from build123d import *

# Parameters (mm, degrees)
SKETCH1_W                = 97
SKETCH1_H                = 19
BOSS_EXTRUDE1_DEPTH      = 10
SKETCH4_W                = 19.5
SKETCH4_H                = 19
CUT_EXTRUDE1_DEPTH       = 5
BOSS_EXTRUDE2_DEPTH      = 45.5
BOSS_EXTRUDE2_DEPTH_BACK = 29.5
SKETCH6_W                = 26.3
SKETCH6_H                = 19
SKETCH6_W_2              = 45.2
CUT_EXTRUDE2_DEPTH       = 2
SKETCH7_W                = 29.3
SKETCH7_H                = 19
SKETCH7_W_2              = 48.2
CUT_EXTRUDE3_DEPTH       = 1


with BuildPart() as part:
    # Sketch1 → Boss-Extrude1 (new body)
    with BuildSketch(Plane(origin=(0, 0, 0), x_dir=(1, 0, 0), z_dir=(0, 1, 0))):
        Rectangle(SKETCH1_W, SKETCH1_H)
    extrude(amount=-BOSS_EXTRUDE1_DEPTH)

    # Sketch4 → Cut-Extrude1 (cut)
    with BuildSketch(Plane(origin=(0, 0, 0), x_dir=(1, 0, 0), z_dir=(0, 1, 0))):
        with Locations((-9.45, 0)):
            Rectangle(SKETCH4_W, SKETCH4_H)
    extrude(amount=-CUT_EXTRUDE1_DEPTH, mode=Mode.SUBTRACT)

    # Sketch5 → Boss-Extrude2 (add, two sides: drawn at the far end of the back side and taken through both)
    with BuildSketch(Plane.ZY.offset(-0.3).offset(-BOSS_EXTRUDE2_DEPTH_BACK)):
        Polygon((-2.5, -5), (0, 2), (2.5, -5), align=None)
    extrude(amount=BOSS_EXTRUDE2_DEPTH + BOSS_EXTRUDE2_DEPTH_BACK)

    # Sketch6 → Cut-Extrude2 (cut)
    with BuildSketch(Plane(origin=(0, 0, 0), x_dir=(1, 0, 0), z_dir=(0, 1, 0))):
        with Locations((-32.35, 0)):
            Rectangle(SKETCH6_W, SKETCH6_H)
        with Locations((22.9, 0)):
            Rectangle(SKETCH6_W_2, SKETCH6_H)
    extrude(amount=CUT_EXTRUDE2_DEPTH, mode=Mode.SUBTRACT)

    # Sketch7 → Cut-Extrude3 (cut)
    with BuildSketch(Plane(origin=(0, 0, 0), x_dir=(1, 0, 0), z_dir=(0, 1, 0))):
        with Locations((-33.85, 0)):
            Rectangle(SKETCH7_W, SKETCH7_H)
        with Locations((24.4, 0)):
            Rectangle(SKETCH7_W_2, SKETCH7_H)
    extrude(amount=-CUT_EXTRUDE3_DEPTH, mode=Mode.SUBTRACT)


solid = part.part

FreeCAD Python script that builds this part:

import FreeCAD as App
import Part
import Sketcher

V = App.Vector
Q = App.Units.Quantity


def add_polygon(sketch, points):
    """Adds a closed chain of lines whose ends are joined by coincident constraints."""
    first, n = sketch.GeometryCount, len(points)
    for a, b in zip(points, points[1:] + points[:1]):
        sketch.addGeometry(Part.LineSegment(App.Vector(*a, 0), App.Vector(*b, 0)), False)
    for i in range(n):
        sketch.addConstraint(Sketcher.Constraint("Coincident", first + i, 2, first + (i + 1) % n, 1))

doc = App.newDocument("Part")
body = doc.addObject("PartDesign::Body", "Body")

# Sketch on XZ plane
sketch1 = body.newObject("Sketcher::SketchObject", "Sketch")
sketch1.AttachmentSupport = (doc.getObject("XZ_Plane"), [""])
sketch1.MapMode = "FlatFace"
add_polygon(sketch1, [(-48.5, -9.5), (-48.5, 9.5), (48.5, 9.5), (48.5, -9.5)])  # lines 0-3
sketch1.addConstraint(Sketcher.Constraint("Vertical", 0))
sketch1.addConstraint(Sketcher.Constraint("Horizontal", 1))
sketch1.addConstraint(Sketcher.Constraint("Vertical", 2))
sketch1.addConstraint(Sketcher.Constraint("Horizontal", 3))
sketch1.addConstraint(Sketcher.Constraint("Symmetric", 0, 2, 2, 2, -1, 1))
sketch1.addConstraint(Sketcher.Constraint("DistanceX", 1, 1, 1, 2, Q("97 mm")))
sketch1.addConstraint(Sketcher.Constraint("DistanceY", 0, 1, 0, 2, Q("19 mm")))
pad1 = body.newObject("PartDesign::Pad", "Pad")
pad1.Profile = sketch1
pad1.Length = 10

# Sketch on XZ plane
sketch2 = body.newObject("Sketcher::SketchObject", "Sketch001")
sketch2.AttachmentSupport = (doc.getObject("XZ_Plane"), [""])
sketch2.MapMode = "FlatFace"
add_polygon(sketch2, [(-19.2, -9.5), (-19.2, 9.5), (0.3, 9.5), (0.3, -9.5)])  # lines 0-3
sketch2.addConstraint(Sketcher.Constraint("Vertical", 0))
sketch2.addConstraint(Sketcher.Constraint("Horizontal", 1))
sketch2.addConstraint(Sketcher.Constraint("Vertical", 2))
sketch2.addConstraint(Sketcher.Constraint("Horizontal", 3))
sketch2.addConstraint(Sketcher.Constraint("DistanceY", 0, 1, 0, 2, Q("19 mm")))
sketch2.addConstraint(Sketcher.Constraint("DistanceX", 1, 1, 1, 2, Q("19.5 mm")))
sketch2.addConstraint(Sketcher.Constraint("DistanceX", 0, 2, -1, 1, Q("19.2 mm")))
sketch2.addConstraint(Sketcher.Constraint("DistanceY", -1, 1, 0, 2, Q("9.5 mm")))
pocket1 = body.newObject("PartDesign::Pocket", "Pocket")
pocket1.Profile = sketch2
pocket1.Length = 5
pocket1.Reversed = True

# Sketch on YZ plane
sketch3 = body.newObject("Sketcher::SketchObject", "Sketch002")
sketch3.AttachmentSupport = (doc.getObject("YZ_Plane"), [""])
sketch3.MapMode = "FlatFace"
sketch3.AttachmentOffset = App.Placement(V(0, 0, 0.3), App.Rotation())
add_polygon(sketch3, [(2, 0), (-5, -2.5), (-5, 2.5)])  # lines 0-2
sketch3.addConstraint(Sketcher.Constraint("Vertical", 1))
sketch3.addConstraint(Sketcher.Constraint("PointOnObject", 2, 2, -1))
sketch3.addConstraint(Sketcher.Constraint("Equal", 0, 2))
sketch3.addConstraint(Sketcher.Constraint("DistanceY", 1, 1, 1, 2, Q("5 mm")))
sketch3.addConstraint(Sketcher.Constraint("DistanceX", 0, 2, -1, 1, Q("5 mm")))
sketch3.addConstraint(Sketcher.Constraint("DistanceX", -1, 1, 2, 2, Q("2 mm")))
pad2 = body.newObject("PartDesign::Pad", "Pad001")
pad2.Profile = sketch3
pad2.Type = "TwoLengths"
pad2.Length = 45.5
pad2.Length2 = 29.5
pad2.Reversed = True

# Sketch on XZ plane
sketch4 = body.newObject("Sketcher::SketchObject", "Sketch003")
sketch4.AttachmentSupport = (doc.getObject("XZ_Plane"), [""])
sketch4.MapMode = "FlatFace"
add_polygon(sketch4, [(-45.5, -9.5), (-45.5, 9.5), (-19.2, 9.5), (-19.2, -9.5)])  # lines 0-3
add_polygon(sketch4, [(0.3, -9.5), (0.3, 9.5), (45.5, 9.5), (45.5, -9.5)])  # lines 4-7
sketch4.addConstraint(Sketcher.Constraint("Vertical", 0))
sketch4.addConstraint(Sketcher.Constraint("Horizontal", 1))
sketch4.addConstraint(Sketcher.Constraint("Vertical", 2))
sketch4.addConstraint(Sketcher.Constraint("Horizontal", 3))
sketch4.addConstraint(Sketcher.Constraint("Vertical", 4))
sketch4.addConstraint(Sketcher.Constraint("Horizontal", 5))
sketch4.addConstraint(Sketcher.Constraint("Vertical", 6))
sketch4.addConstraint(Sketcher.Constraint("Horizontal", 7))
sketch4.addConstraint(Sketcher.Constraint("Symmetric", 3, 2, 5, 2, -1, 1))
sketch4.addConstraint(Sketcher.Constraint("Horizontal", 1, 2, 4, 2))
sketch4.addConstraint(Sketcher.Constraint("Horizontal", 3, 2, 6, 2))
sketch4.addConstraint(Sketcher.Constraint("DistanceY", 0, 1, 0, 2, Q("19 mm")))
sketch4.addConstraint(Sketcher.Constraint("DistanceX", 1, 1, 1, 2, Q("26.3 mm")))
sketch4.addConstraint(Sketcher.Constraint("DistanceX", 5, 1, 5, 2, Q("45.2 mm")))
sketch4.addConstraint(Sketcher.Constraint("DistanceX", 0, 2, 5, 2, Q("91 mm")))
pocket2 = body.newObject("PartDesign::Pocket", "Pocket001")
pocket2.Profile = sketch4
pocket2.Length = 2

# Sketch on XZ plane
sketch5 = body.newObject("Sketcher::SketchObject", "Sketch004")
sketch5.AttachmentSupport = (doc.getObject("XZ_Plane"), [""])
sketch5.MapMode = "FlatFace"
add_polygon(sketch5, [(-48.5, -9.5), (-48.5, 9.5), (-19.2, 9.5), (-19.2, -9.5)])  # lines 0-3
add_polygon(sketch5, [(0.3, -9.5), (0.3, 9.5), (48.5, 9.5), (48.5, -9.5)])  # lines 4-7
sketch5.addConstraint(Sketcher.Constraint("Vertical", 0))
sketch5.addConstraint(Sketcher.Constraint("Horizontal", 1))
sketch5.addConstraint(Sketcher.Constraint("Vertical", 2))
sketch5.addConstraint(Sketcher.Constraint("Horizontal", 3))
sketch5.addConstraint(Sketcher.Constraint("Vertical", 4))
sketch5.addConstraint(Sketcher.Constraint("Horizontal", 5))
sketch5.addConstraint(Sketcher.Constraint("Vertical", 6))
sketch5.addConstraint(Sketcher.Constraint("Horizontal", 7))
sketch5.addConstraint(Sketcher.Constraint("Symmetric", 3, 2, 5, 2, -1, 1))
sketch5.addConstraint(Sketcher.Constraint("Horizontal", 1, 2, 4, 2))
sketch5.addConstraint(Sketcher.Constraint("Horizontal", 3, 2, 6, 2))
sketch5.addConstraint(Sketcher.Constraint("DistanceY", 0, 1, 0, 2, Q("19 mm")))
sketch5.addConstraint(Sketcher.Constraint("DistanceX", 1, 1, 1, 2, Q("29.3 mm")))
sketch5.addConstraint(Sketcher.Constraint("DistanceX", 5, 1, 5, 2, Q("48.2 mm")))
sketch5.addConstraint(Sketcher.Constraint("DistanceX", 0, 2, 5, 2, Q("97 mm")))
pocket3 = body.newObject("PartDesign::Pocket", "Pocket002")
pocket3.Profile = sketch5
pocket3.Length = 1
pocket3.Reversed = True

doc.recompute()
